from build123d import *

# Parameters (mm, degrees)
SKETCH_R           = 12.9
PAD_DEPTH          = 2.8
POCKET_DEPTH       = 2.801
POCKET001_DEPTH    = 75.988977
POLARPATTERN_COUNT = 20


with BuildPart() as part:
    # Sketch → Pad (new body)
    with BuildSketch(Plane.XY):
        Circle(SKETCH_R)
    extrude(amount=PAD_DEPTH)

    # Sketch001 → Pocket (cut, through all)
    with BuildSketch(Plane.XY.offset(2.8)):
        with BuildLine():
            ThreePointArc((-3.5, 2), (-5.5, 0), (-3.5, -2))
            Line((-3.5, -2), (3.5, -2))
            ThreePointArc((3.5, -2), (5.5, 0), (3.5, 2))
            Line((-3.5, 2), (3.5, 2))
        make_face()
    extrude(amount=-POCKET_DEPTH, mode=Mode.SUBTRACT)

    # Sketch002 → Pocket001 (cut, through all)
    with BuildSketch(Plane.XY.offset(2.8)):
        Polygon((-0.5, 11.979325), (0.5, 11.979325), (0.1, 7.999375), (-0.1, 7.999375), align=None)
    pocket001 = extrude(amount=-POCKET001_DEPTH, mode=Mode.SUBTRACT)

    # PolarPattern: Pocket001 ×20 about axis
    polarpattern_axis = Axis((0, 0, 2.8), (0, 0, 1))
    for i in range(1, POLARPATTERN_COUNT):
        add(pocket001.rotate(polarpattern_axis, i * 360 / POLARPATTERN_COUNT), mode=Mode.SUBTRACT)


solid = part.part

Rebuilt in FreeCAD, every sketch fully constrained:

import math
import FreeCAD as App
import Part
import Sketcher

V = App.Vector
Q = App.Units.Quantity


def add_polygon(sketch, points):
    """Adds a closed chain of lines whose ends are joined by coincident constraints."""
    first, n = sketch.GeometryCount, len(points)
    for a, b in zip(points, points[1:] + points[:1]):
        sketch.addGeometry(Part.LineSegment(App.Vector(*a, 0), App.Vector(*b, 0)), False)
    for i in range(n):
        sketch.addConstraint(Sketcher.Constraint("Coincident", first + i, 2, first + (i + 1) % n, 1))

doc = App.newDocument("Part")
params = doc.addObject("Spreadsheet::Sheet", "Params")
for row, (alias, value) in enumerate([
    ("sketch1_diameter", "25.8 mm"),
    ("pad1_length", "2.8 mm"),
    ("sketch2_radius", "2 mm"),
    ("sketch2_width", "7 mm"),
    ("sketch3_width", "1 mm"),
    ("sketch3_length", "4 mm"),
    ("sketch3_width2", "0.2 mm"),
], start=1):
    params.set(f"A{row}", alias)
    params.set(f"B{row}", "=" + value)
    params.setAlias(f"B{row}", alias)

body = doc.addObject("PartDesign::Body", "Body")

sketch1 = body.newObject("Sketcher::SketchObject", "Sketch")
sketch1.AttachmentSupport = (doc.getObject("XY_Plane"), [""])
sketch1.MapMode = "FlatFace"
sketch1.addGeometry(Part.Circle(V(0, 0, 0), V(0, 0, 1), 12.9), False)
sketch1.addConstraint(Sketcher.Constraint("Coincident", 0, 3, -1, 1))
sketch1.addConstraint(Sketcher.Constraint("Diameter", 0, Q("25.8 mm")))
sketch1.setExpression("Constraints[1]", "Params.sketch1_diameter")
pad1 = body.newObject("PartDesign::Pad", "Pad")
pad1.Profile = sketch1
pad1.setExpression("Length", "Params.pad1_length")

sketch2 = body.newObject("Sketcher::SketchObject", "Sketch001")
sketch2.AttachmentSupport = (doc.getObject("XY_Plane"), [""])
sketch2.MapMode = "FlatFace"
sketch2.AttachmentOffset = App.Placement(V(0, 0, 2.8), App.Rotation())
sketch2.addGeometry(Part.ArcOfCircle(Part.Circle(V(-3.5, 0, 0), V(0, 0, 1), 2), math.radians(90), math.radians(270)), False)
sketch2.addGeometry(Part.LineSegment(V(-3.5, -2, 0), V(3.5, -2, 0)), False)
sketch2.addGeometry(Part.ArcOfCircle(Part.Circle(V(3.5, 0, 0), V(0, 0, 1), 2), math.radians(-90), math.radians(90)), False)
sketch2.addGeometry(Part.LineSegment(V(3.5, 2, 0), V(-3.5, 2, 0)), False)
sketch2.addConstraint(Sketcher.Constraint("Tangent", 0, 2, 1, 1))
sketch2.addConstraint(Sketcher.Constraint("Tangent", 1, 2, 2, 1))
sketch2.addConstraint(Sketcher.Constraint("Tangent", 2, 2, 3, 1))
sketch2.addConstraint(Sketcher.Constraint("Tangent", 3, 2, 0, 1))
sketch2.addConstraint(Sketcher.Constraint("Horizontal", 1))
sketch2.addConstraint(Sketcher.Constraint("Horizontal", 3))
sketch2.addConstraint(Sketcher.Constraint("Symmetric", 0, 3, 2, 3, -1, 1))
sketch2.addConstraint(Sketcher.Constraint("Radius", 0, Q("2 mm")))
sketch2.addConstraint(Sketcher.Constraint("DistanceX", 1, 1, 1, 2, Q("7 mm")))
sketch2.setExpression("Constraints[7]", "Params.sketch2_radius")
sketch2.setExpression("Constraints[8]", "Params.sketch2_width")
pocket1 = body.newObject("PartDesign::Pocket", "Pocket")
pocket1.Profile = sketch2
pocket1.Type = "ThroughAll"

sketch3 = body.newObject("Sketcher::SketchObject", "Sketch002")
sketch3.AttachmentSupport = (doc.getObject("XY_Plane"), [""])
sketch3.MapMode = "FlatFace"
sketch3.AttachmentOffset = App.Placement(V(0, 0, 2.8), App.Rotation())
add_polygon(sketch3, [(0.5, 11.979325), (-0.5, 11.979325), (-0.1, 7.999375), (0.1, 7.999375)])
sketch3.addConstraint(Sketcher.Constraint("Horizontal", 0))
sketch3.addConstraint(Sketcher.Constraint("Horizontal", 2))
sketch3.addConstraint(Sketcher.Constraint("Equal", 1, 3))
sketch3.addConstraint(Sketcher.Constraint("DistanceX", 0, 2, 0, 1, Q("1 mm")))
sketch3.addConstraint(Sketcher.Constraint("Distance", 1, Q("4 mm")))
sketch3.addConstraint(Sketcher.Constraint("DistanceX", 2, 1, 2, 2, Q("0.2 mm")))
sketch3.addConstraint(Sketcher.Constraint("DistanceX", 0, 2, -1, 1, Q("0.5 mm")))
sketch3.addConstraint(Sketcher.Constraint("DistanceY", -1, 1, 0, 2, Q("11.979325 mm")))
sketch3.setExpression("Constraints[7]", "Params.sketch3_width")
sketch3.setExpression("Constraints[8]", "Params.sketch3_length")
sketch3.setExpression("Constraints[9]", "Params.sketch3_width2")
pocket2 = body.newObject("PartDesign::Pocket", "Pocket001")
pocket2.Profile = sketch3
pocket2.Type = "ThroughAll"
doc.recompute()

polarpattern = body.newObject("PartDesign::PolarPattern", "PolarPattern")
polarpattern.Originals = [pocket2]
polarpattern.Axis = (doc.getObject("Z_Axis"), [""])
polarpattern.Angle = 360
polarpattern.Occurrences = 20
body.Tip = polarpattern

doc.recompute()
